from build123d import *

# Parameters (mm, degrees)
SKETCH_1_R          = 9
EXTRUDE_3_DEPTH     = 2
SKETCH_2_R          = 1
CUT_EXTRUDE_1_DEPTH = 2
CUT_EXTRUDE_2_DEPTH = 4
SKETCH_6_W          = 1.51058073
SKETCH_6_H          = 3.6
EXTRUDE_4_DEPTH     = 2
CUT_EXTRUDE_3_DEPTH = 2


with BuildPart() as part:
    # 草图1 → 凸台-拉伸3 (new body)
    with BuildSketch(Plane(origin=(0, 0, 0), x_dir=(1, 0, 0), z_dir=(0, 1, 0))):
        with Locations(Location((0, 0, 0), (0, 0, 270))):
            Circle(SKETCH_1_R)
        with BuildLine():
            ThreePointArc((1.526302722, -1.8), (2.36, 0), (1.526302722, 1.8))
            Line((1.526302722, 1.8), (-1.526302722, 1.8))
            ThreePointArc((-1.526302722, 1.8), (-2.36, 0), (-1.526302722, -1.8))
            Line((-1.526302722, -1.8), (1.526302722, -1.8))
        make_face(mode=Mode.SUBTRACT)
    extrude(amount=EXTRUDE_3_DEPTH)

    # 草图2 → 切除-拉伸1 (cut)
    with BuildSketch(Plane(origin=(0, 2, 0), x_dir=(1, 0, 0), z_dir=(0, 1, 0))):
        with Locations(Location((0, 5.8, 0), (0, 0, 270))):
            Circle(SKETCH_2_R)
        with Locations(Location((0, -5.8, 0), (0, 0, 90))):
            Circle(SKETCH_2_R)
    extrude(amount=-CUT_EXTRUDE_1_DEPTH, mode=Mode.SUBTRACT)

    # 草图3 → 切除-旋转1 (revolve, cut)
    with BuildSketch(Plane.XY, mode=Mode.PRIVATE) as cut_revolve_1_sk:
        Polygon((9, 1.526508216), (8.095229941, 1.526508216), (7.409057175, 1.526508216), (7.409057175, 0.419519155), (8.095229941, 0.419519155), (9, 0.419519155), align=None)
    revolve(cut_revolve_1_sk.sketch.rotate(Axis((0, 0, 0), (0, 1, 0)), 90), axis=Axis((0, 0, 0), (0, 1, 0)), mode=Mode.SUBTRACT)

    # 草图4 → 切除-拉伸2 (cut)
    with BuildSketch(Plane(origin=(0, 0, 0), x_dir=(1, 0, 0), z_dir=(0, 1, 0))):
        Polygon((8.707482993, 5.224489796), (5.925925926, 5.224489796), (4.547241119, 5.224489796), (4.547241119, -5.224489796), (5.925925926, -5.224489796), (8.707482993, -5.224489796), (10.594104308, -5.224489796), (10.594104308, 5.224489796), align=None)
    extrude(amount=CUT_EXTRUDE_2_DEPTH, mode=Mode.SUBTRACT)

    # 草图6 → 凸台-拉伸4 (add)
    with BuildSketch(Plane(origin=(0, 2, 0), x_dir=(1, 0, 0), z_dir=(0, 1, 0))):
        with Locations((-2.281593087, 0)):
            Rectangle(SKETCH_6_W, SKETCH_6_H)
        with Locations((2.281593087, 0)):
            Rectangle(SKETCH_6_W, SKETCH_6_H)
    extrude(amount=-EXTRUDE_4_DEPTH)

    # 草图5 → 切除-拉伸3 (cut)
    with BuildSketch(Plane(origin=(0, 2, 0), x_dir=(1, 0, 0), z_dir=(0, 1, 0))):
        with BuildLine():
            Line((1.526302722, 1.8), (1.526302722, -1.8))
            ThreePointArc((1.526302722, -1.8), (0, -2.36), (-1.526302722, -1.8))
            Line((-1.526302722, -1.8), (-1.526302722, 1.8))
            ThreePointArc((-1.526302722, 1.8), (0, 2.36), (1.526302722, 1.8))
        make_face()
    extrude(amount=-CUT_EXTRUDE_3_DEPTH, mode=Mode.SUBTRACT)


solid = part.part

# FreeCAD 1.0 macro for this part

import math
import FreeCAD as App
import Part
import Sketcher
Q = App.Units.Quantity


def add_polygon(sketch, points):
    """Adds a closed chain of lines whose ends are joined by coincident constraints."""
    first, n = sketch.GeometryCount, len(points)
    for a, b in zip(points, points[1:] + points[:1]):
        sketch.addGeometry(Part.LineSegment(App.Vector(*a, 0), App.Vector(*b, 0)), False)
    for i in range(n):
        sketch.addConstraint(Sketcher.Constraint("Coincident", first + i, 2, first + (i + 1) % n, 1))

doc = App.newDocument("Part")
params = doc.addObject("Spreadsheet::Sheet", "Params")
for row, (alias, value) in enumerate([
    ("sketch1_diameter", "18 mm"),
    ("sketch1_radius", "2.36 mm"),
    ("pad1_length", "2 mm"),
    ("sketch2_diameter", "2 mm"),
    ("pocket1_length", "2 mm"),
    ("groove_angle", "360 deg"),
    ("pocket2_length", "4 mm"),
    ("sketch5_height", "3.6 mm"),
    ("pad2_length", "2 mm"),
    ("sketch6_radius", "2.36 mm"),
    ("sketch6_height", "3.6 mm"),
    ("pocket3_length", "2 mm"),
], start=1):
    params.set(f"A{row}", alias)
    params.set(f"B{row}", "=" + value)
    params.setAlias(f"B{row}", alias)

body = doc.addObject("PartDesign::Body", "Body")

sketch1 = body.newObject("Sketcher::SketchObject", "Sketch")
sketch1.AttachmentSupport = (doc.getObject("XZ_Plane"), [""])
sketch1.MapMode = "FlatFace"
sketch1.addGeometry([
    Part.Circle(App.Vector(0, 0, 0), App.Vector(0, 0, 1), 9),
    Part.ArcOfCircle(Part.Circle(App.Vector(0, 0, 0), App.Vector(0, 0, 1), 2.4), math.radians(-50), math.radians(50)),
    Part.LineSegment(App.Vector(1.5, 1.8, 0), App.Vector(-1.5, 1.8, 0)),
    Part.ArcOfCircle(Part.Circle(App.Vector(0, 0, 0), App.Vector(0, 0, 1), 2.4), math.radians(130), math.radians(230)),
    Part.LineSegment(App.Vector(-1.5, -1.8, 0), App.Vector(1.5, -1.8, 0)),
], False)
sketch1.addConstraint([
    Sketcher.Constraint("Coincident", 1, 2, 2, 1),
    Sketcher.Constraint("Coincident", 2, 2, 3, 1),
    Sketcher.Constraint("Coincident", 3, 2, 4, 1),
    Sketcher.Constraint("Coincident", 4, 2, 1, 1),
    Sketcher.Constraint("Horizontal", 2),
    Sketcher.Constraint("Horizontal", 4),
    Sketcher.Constraint("Coincident", 0, 3, -1, 1),
    Sketcher.Constraint("Coincident", 1, 3, -1, 1),
    Sketcher.Constraint("Coincident", 3, 3, -1, 1),
    Sketcher.Constraint("Equal", 1, 3),
    Sketcher.Constraint("Vertical", 2, 2, 3, 2),
    Sketcher.Constraint("Diameter", 0, Q("18 mm")),
    Sketcher.Constraint("Radius", 1, Q("2.36 mm")),
    Sketcher.Constraint("DistanceY", -1, 1, 1, 2, Q("1.8 mm")),
])
sketch1.setExpression("Constraints[11]", "Params.sketch1_diameter")
sketch1.setExpression("Constraints[12]", "Params.sketch1_radius")
pad1 = body.newObject("PartDesign::Pad", "Pad")
pad1.Profile = sketch1
pad1.setExpression("Length", "Params.pad1_length")
pad1.Reversed = True

sketch2 = body.newObject("Sketcher::SketchObject", "Sketch001")
sketch2.AttachmentSupport = (doc.getObject("XZ_Plane"), [""])
sketch2.MapMode = "FlatFace"
sketch2.AttachmentOffset = App.Placement(App.Vector(0, 0, -2), App.Rotation())
sketch2.addGeometry([
    Part.Circle(App.Vector(0, -5.8, 0), App.Vector(0, 0, 1), 1),
    Part.Circle(App.Vector(0, 5.8, 0), App.Vector(0, 0, 1), 1),
], False)
sketch2.addConstraint([
    Sketcher.Constraint("Equal", 0, 1),
    Sketcher.Constraint("Symmetric", 0, 3, 1, 3, -1, 1),
    Sketcher.Constraint("PointOnObject", 0, 3, -2),
    Sketcher.Constraint("Diameter", 0, Q("2 mm")),
    Sketcher.Constraint("DistanceY", 0, 3, -1, 1, Q("5.8 mm")),
])
sketch2.setExpression("Constraints[3]", "Params.sketch2_diameter")
pocket1 = body.newObject("PartDesign::Pocket", "Pocket")
pocket1.Profile = sketch2
pocket1.setExpression("Length", "Params.pocket1_length")
pocket1.Reversed = True

sketch3 = body.newObject("Sketcher::SketchObject", "Sketch002")
sketch3.AttachmentSupport = (doc.getObject("XY_Plane"), [""])
sketch3.MapMode = "FlatFace"
add_polygon(sketch3, [(9, 1.5), (7.4, 1.5), (7.4, 0.4), (9, 0.4)])
sketch3.addConstraint([
    Sketcher.Constraint("Horizontal", 0),
    Sketcher.Constraint("Vertical", 1),
    Sketcher.Constraint("Horizontal", 2),
    Sketcher.Constraint("Vertical", 3),
    Sketcher.Constraint("DistanceX", -1, 1, 2, 2, Q("9 mm")),
    Sketcher.Constraint("DistanceY", 1, 2, 1, 1, Q("1.106989 mm")),
    Sketcher.Constraint("DistanceX", 0, 2, 0, 1, Q("1.590943 mm")),
    Sketcher.Constraint("DistanceY", -1, 1, 0, 2, Q("1.526508 mm")),
])
groove = body.newObject("PartDesign::Groove", "Groove")
groove.Profile = sketch3
groove.ReferenceAxis = (sketch3, ["V_Axis"])
groove.setExpression("Angle", "Params.groove_angle")

sketch4 = body.newObject("Sketcher::SketchObject", "Sketch003")
sketch4.AttachmentSupport = (doc.getObject("XZ_Plane"), [""])
sketch4.MapMode = "FlatFace"
add_polygon(sketch4, [(5, -5), (5, 5), (11, 5), (11, -5)])
sketch4.addConstraint([
    Sketcher.Constraint("Vertical", 0),
    Sketcher.Constraint("Horizontal", 1),
    Sketcher.Constraint("Vertical", 2),
    Sketcher.Constraint("Horizontal", 3),
    Sketcher.Constraint("DistanceY", 0, 1, 0, 2, Q("10.44898 mm")),
    Sketcher.Constraint("DistanceX", 1, 1, 1, 2, Q("6.046863 mm")),
    Sketcher.Constraint("DistanceX", -1, 1, 0, 2, Q("4.547241 mm")),
    Sketcher.Constraint("DistanceY", -1, 1, 0, 2, Q("5.22449 mm")),
])
pocket2 = body.newObject("PartDesign::Pocket", "Pocket001")
pocket2.Profile = sketch4
pocket2.setExpression("Length", "Params.pocket2_length")

sketch5 = body.newObject("Sketcher::SketchObject", "Sketch004")
sketch5.AttachmentSupport = (doc.getObject("XZ_Plane"), [""])
sketch5.MapMode = "FlatFace"
sketch5.AttachmentOffset = App.Placement(App.Vector(0, 0, -2), App.Rotation())
add_polygon(sketch5, [(-3, -1.8), (-3, 1.8), (-1.5, 1.8), (-1.5, -1.8)])
add_polygon(sketch5, [(1.5, -1.8), (1.5, 1.8), (3, 1.8), (3, -1.8)])
sketch5.addConstraint([
    Sketcher.Constraint("Vertical", 0),
    Sketcher.Constraint("Horizontal", 1),
    Sketcher.Constraint("Vertical", 2),
    Sketcher.Constraint("Horizontal", 3),
    Sketcher.Constraint("Vertical", 4),
    Sketcher.Constraint("Horizontal", 5),
    Sketcher.Constraint("Vertical", 6),
    Sketcher.Constraint("Horizontal", 7),
    Sketcher.Constraint("Symmetric", 2, 2, 4, 2, -1, 1),
    Sketcher.Constraint("Symmetric", 0, 2, 6, 2, -1, 1),
    Sketcher.Constraint("Horizontal", 1, 2, 4, 2),
    Sketcher.Constraint("DistanceY", 0, 1, 0, 2, Q("3.6 mm")),
    Sketcher.Constraint("DistanceX", 1, 1, 1, 2, Q("1.510581 mm")),
    Sketcher.Constraint("DistanceX", 0, 2, -1, 1, Q("3.036883 mm")),
])
sketch5.setExpression("Constraints[19]", "Params.sketch5_height")
pad2 = body.newObject("PartDesign::Pad", "Pad001")
pad2.Profile = sketch5
pad2.setExpression("Length", "Params.pad2_length")

sketch6 = body.newObject("Sketcher::SketchObject", "Sketch005")
sketch6.AttachmentSupport = (doc.getObject("XZ_Plane"), [""])
sketch6.MapMode = "FlatFace"
sketch6.AttachmentOffset = App.Placement(App.Vector(0, 0, -2), App.Rotation())
sketch6.addGeometry([
    Part.LineSegment(App.Vector(1.5, 1.8, 0), App.Vector(1.5, -1.8, 0)),
    Part.ArcOfCircle(Part.Circle(App.Vector(0, 0, 0), App.Vector(0, 0, 1), 2.4), math.radians(-130), math.radians(-50)),
    Part.LineSegment(App.Vector(-1.5, -1.8, 0), App.Vector(-1.5, 1.8, 0)),
    Part.ArcOfCircle(Part.Circle(App.Vector(0, 0, 0), App.Vector(0, 0, 1), 2.4), math.radians(50), math.radians(130)),
], False)
sketch6.addConstraint([
    Sketcher.Constraint("Coincident", 0, 2, 1, 2),
    Sketcher.Constraint("Coincident", 1, 1, 2, 1),
    Sketcher.Constraint("Coincident", 2, 2, 3, 2),
    Sketcher.Constraint("Coincident", 3, 1, 0, 1),
    Sketcher.Constraint("Vertical", 0),
    Sketcher.Constraint("Vertical", 2),
    Sketcher.Constraint("Coincident", 1, 3, -1, 1),
    Sketcher.Constraint("Coincident", 3, 3, -1, 1),
    Sketcher.Constraint("Equal", 1, 3),
    Sketcher.Constraint("Horizontal", 0, 2, 1, 1),
    Sketcher.Constraint("Radius", 1, Q("2.36 mm")),
    Sketcher.Constraint("DistanceY", 0, 2, 0, 1, Q("3.6 mm")),
])
sketch6.setExpression("Constraints[10]", "Params.sketch6_radius")
sketch6.setExpression("Constraints[11]", "Params.sketch6_height")
pocket3 = body.newObject("PartDesign::Pocket", "Pocket002")
pocket3.Profile = sketch6
pocket3.setExpression("Length", "Params.pocket3_length")
pocket3.Reversed = True

doc.recompute()
